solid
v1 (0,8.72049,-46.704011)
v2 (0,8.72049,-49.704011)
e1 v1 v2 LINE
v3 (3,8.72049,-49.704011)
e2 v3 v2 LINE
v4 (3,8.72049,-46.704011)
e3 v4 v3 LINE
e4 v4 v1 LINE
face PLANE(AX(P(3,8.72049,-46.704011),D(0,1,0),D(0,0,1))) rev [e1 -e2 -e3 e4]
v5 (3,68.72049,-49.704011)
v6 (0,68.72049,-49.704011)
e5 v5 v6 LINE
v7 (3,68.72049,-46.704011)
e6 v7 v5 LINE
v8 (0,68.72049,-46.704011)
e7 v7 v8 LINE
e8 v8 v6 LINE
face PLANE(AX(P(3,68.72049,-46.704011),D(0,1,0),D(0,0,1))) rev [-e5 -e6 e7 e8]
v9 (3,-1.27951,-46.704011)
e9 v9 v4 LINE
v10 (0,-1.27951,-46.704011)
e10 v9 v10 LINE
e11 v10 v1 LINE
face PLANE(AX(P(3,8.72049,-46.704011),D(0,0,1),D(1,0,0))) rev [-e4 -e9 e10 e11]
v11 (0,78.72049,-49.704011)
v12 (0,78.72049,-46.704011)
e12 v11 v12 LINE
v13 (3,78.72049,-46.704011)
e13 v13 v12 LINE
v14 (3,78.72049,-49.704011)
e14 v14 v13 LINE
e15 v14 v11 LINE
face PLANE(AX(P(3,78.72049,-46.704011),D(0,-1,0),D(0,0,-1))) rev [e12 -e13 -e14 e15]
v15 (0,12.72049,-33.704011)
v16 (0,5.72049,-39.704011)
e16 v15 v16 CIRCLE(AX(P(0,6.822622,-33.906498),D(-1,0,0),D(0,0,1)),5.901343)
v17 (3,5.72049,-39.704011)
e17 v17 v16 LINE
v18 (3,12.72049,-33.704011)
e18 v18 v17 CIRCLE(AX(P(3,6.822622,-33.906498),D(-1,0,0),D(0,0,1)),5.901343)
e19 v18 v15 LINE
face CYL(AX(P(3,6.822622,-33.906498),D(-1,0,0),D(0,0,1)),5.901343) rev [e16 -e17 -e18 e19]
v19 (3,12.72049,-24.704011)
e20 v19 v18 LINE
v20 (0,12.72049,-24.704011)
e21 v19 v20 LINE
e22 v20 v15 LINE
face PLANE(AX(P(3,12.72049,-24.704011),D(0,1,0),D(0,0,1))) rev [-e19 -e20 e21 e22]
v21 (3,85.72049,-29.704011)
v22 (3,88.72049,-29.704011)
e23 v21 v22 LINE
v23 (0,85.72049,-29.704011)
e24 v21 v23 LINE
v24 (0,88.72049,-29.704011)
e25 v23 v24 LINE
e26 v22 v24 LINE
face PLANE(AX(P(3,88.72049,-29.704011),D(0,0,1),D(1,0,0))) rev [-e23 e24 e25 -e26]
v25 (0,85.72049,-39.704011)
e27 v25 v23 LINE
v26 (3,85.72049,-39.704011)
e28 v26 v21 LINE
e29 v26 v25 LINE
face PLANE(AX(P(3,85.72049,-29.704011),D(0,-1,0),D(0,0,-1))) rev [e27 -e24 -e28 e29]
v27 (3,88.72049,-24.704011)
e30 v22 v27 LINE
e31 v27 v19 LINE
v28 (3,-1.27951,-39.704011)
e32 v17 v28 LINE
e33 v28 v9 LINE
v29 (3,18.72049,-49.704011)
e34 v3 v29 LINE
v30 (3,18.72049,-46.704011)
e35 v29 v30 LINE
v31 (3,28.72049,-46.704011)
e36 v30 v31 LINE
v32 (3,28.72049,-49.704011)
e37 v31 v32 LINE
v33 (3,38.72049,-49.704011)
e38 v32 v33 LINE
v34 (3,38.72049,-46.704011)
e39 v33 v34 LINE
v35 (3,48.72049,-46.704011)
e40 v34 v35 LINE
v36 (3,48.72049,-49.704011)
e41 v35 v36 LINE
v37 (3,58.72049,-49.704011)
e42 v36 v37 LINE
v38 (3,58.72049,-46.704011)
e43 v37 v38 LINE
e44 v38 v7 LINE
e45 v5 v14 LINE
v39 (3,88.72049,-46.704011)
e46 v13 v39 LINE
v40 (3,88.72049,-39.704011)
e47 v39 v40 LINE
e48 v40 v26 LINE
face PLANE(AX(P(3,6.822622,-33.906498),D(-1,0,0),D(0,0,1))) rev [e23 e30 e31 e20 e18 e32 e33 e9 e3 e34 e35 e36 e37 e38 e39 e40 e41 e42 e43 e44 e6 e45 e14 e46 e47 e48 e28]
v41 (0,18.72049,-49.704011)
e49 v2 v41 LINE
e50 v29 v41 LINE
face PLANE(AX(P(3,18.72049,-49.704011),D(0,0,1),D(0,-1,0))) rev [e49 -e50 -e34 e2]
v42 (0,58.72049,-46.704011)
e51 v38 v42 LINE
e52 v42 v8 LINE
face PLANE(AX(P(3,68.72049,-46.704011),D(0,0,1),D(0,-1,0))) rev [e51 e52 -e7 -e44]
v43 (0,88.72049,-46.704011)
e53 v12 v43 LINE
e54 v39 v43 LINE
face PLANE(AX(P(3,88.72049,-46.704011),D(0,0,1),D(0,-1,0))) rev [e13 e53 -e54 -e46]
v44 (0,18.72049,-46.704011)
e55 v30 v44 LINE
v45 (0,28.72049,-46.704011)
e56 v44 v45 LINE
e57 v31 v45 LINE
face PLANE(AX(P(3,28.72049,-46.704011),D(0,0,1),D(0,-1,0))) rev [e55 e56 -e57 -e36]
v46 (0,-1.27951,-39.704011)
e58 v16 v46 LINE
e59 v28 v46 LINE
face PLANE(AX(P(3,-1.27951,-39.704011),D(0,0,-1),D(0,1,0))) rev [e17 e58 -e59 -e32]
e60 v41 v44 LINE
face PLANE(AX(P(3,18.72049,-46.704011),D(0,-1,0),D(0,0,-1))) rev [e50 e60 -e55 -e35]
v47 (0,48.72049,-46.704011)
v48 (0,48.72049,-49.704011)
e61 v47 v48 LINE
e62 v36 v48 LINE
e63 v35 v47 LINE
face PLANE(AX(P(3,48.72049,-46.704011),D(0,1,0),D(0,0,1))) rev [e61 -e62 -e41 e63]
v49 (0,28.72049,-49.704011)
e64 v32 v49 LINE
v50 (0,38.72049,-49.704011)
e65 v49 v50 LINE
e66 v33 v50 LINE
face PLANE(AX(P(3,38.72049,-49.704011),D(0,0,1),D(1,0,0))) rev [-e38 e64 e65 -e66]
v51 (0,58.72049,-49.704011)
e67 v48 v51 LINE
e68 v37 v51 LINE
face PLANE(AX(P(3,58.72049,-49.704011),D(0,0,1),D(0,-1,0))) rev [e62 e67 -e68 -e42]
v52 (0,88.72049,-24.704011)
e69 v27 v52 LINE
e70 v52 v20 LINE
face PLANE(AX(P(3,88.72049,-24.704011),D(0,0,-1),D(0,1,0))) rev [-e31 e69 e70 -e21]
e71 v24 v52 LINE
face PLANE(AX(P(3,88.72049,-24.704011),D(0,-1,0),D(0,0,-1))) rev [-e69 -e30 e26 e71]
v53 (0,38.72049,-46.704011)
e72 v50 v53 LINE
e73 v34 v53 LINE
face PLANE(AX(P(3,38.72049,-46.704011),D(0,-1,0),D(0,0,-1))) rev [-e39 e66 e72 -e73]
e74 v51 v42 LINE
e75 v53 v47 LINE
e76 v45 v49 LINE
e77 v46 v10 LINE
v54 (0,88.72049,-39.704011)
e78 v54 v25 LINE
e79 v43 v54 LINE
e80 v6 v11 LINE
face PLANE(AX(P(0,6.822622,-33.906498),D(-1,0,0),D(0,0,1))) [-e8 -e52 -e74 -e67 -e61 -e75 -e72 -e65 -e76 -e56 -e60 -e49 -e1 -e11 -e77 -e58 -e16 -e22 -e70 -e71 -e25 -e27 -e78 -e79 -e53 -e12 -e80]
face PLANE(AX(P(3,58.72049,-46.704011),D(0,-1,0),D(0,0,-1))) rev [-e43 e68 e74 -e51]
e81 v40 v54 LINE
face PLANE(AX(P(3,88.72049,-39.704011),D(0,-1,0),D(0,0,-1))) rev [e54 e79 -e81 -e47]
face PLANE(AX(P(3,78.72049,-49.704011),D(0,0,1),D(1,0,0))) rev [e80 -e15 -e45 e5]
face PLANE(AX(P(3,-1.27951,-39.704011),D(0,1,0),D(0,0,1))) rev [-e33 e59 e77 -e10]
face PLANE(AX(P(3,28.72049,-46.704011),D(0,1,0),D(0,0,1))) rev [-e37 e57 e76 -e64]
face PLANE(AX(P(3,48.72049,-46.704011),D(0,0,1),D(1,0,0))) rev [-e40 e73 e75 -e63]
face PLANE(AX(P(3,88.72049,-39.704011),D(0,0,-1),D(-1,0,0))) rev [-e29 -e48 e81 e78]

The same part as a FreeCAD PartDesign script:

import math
import FreeCAD as App
import Part
import Sketcher
from FreeCAD import Vector
Q = App.Units.Quantity

doc = App.newDocument("Part")
params = doc.addObject("Spreadsheet::Sheet", "Params")
for row, (alias, value) in enumerate([
    ("sketch1_width", "7 mm"),
    ("sketch1_width2", "10 mm"),
    ("sketch1_width3", "3 mm"),
    ("sketch1_width4", "76 mm"),
    ("sketch1_height", "9 mm"),
    ("pad1_length", "3 mm"),
], start=1):
    params.set(f"A{row}", alias)
    params.set(f"B{row}", "=" + value)
    params.setAlias(f"B{row}", alias)

body = doc.addObject("PartDesign::Body", "Body")

sketch1 = doc.addObject("Sketcher::SketchObject", "Sketch")
body.addObject(sketch1)
sketch1.AttachmentSupport = (doc.YZ_Plane, [""])
sketch1.MapMode = "FlatFace"
sketch1.addGeometry([
    Part.LineSegment(Vector(12.7, -24.7, 0), Vector(12.7, -33.7, 0)),
    Part.ArcOfCircle(Part.Circle(Vector(6.8, -33.9, 0), Vector(0, 0, 1), 5.9), math.radians(-101), math.radians(2)),
    Part.LineSegment(Vector(5.7, -39.7, 0), Vector(-1.3, -39.7, 0)),
    Part.LineSegment(Vector(-1.3, -39.7, 0), Vector(-1.3, -46.7, 0)),
    Part.LineSegment(Vector(-1.3, -46.7, 0), Vector(8.7, -46.7, 0)),
    Part.LineSegment(Vector(8.7, -46.7, 0), Vector(8.7, -49.7, 0)),
    Part.LineSegment(Vector(8.7, -49.7, 0), Vector(18.7, -49.7, 0)),
    Part.LineSegment(Vector(18.7, -49.7, 0), Vector(18.7, -46.7, 0)),
    Part.LineSegment(Vector(18.7, -46.7, 0), Vector(28.7, -46.7, 0)),
    Part.LineSegment(Vector(28.7, -46.7, 0), Vector(28.7, -49.7, 0)),
    Part.LineSegment(Vector(28.7, -49.7, 0), Vector(38.7, -49.7, 0)),
    Part.LineSegment(Vector(38.7, -49.7, 0), Vector(38.7, -46.7, 0)),
    Part.LineSegment(Vector(38.7, -46.7, 0), Vector(48.7, -46.7, 0)),
    Part.LineSegment(Vector(48.7, -46.7, 0), Vector(48.7, -49.7, 0)),
    Part.LineSegment(Vector(48.7, -49.7, 0), Vector(58.7, -49.7, 0)),
    Part.LineSegment(Vector(58.7, -49.7, 0), Vector(58.7, -46.7, 0)),
    Part.LineSegment(Vector(58.7, -46.7, 0), Vector(68.7, -46.7, 0)),
    Part.LineSegment(Vector(68.7, -46.7, 0), Vector(68.7, -49.7, 0)),
    Part.LineSegment(Vector(68.7, -49.7, 0), Vector(78.7, -49.7, 0)),
    Part.LineSegment(Vector(78.7, -49.7, 0), Vector(78.7, -46.7, 0)),
    Part.LineSegment(Vector(78.7, -46.7, 0), Vector(88.7, -46.7, 0)),
    Part.LineSegment(Vector(88.7, -46.7, 0), Vector(88.7, -39.7, 0)),
    Part.LineSegment(Vector(88.7, -39.7, 0), Vector(85.7, -39.7, 0)),
    Part.LineSegment(Vector(85.7, -39.7, 0), Vector(85.7, -29.7, 0)),
    Part.LineSegment(Vector(85.7, -29.7, 0), Vector(88.7, -29.7, 0)),
    Part.LineSegment(Vector(88.7, -29.7, 0), Vector(88.7, -24.7, 0)),
    Part.LineSegment(Vector(88.7, -24.7, 0), Vector(12.7, -24.7, 0)),
], False)
sketch1.addConstraint([
    Sketcher.Constraint("Coincident", 0, 2, 1, 2),
    Sketcher.Constraint("Coincident", 1, 1, 2, 1),
    Sketcher.Constraint("Coincident", 2, 2, 3, 1),
    Sketcher.Constraint("Coincident", 3, 2, 4, 1),
    Sketcher.Constraint("Coincident", 4, 2, 5, 1),
    Sketcher.Constraint("Coincident", 5, 2, 6, 1),
    Sketcher.Constraint("Coincident", 6, 2, 7, 1),
    Sketcher.Constraint("Coincident", 7, 2, 8, 1),
    Sketcher.Constraint("Coincident", 8, 2, 9, 1),
    Sketcher.Constraint("Coincident", 9, 2, 10, 1),
    Sketcher.Constraint("Coincident", 10, 2, 11, 1),
    Sketcher.Constraint("Coincident", 11, 2, 12, 1),
    Sketcher.Constraint("Coincident", 12, 2, 13, 1),
    Sketcher.Constraint("Coincident", 13, 2, 14, 1),
    Sketcher.Constraint("Coincident", 14, 2, 15, 1),
    Sketcher.Constraint("Coincident", 15, 2, 16, 1),
    Sketcher.Constraint("Coincident", 16, 2, 17, 1),
    Sketcher.Constraint("Coincident", 17, 2, 18, 1),
    Sketcher.Constraint("Coincident", 18, 2, 19, 1),
    Sketcher.Constraint("Coincident", 19, 2, 20, 1),
    Sketcher.Constraint("Coincident", 20, 2, 21, 1),
    Sketcher.Constraint("Coincident", 21, 2, 22, 1),
    Sketcher.Constraint("Coincident", 22, 2, 23, 1),
    Sketcher.Constraint("Coincident", 23, 2, 24, 1),
    Sketcher.Constraint("Coincident", 24, 2, 25, 1),
    Sketcher.Constraint("Coincident", 25, 2, 26, 1),
    Sketcher.Constraint("Coincident", 26, 2, 0, 1),
    Sketcher.Constraint("Vertical", 0),
    Sketcher.Constraint("Horizontal", 2),
    Sketcher.Constraint("Vertical", 3),
    Sketcher.Constraint("Horizontal", 4),
    Sketcher.Constraint("Vertical", 5),
    Sketcher.Constraint("Horizontal", 6),
    Sketcher.Constraint("Vertical", 7),
    Sketcher.Constraint("Horizontal", 8),
    Sketcher.Constraint("Vertical", 9),
    Sketcher.Constraint("Horizontal", 10),
    Sketcher.Constraint("Vertical", 11),
    Sketcher.Constraint("Horizontal", 12),
    Sketcher.Constraint("Vertical", 13),
    Sketcher.Constraint("Horizontal", 14),
    Sketcher.Constraint("Vertical", 15),
    Sketcher.Constraint("Horizontal", 16),
    Sketcher.Constraint("Vertical", 17),
    Sketcher.Constraint("Horizontal", 18),
    Sketcher.Constraint("Vertical", 19),
    Sketcher.Constraint("Horizontal", 20),
    Sketcher.Constraint("Vertical", 21),
    Sketcher.Constraint("Horizontal", 22),
    Sketcher.Constraint("Vertical", 23),
    Sketcher.Constraint("Horizontal", 24),
    Sketcher.Constraint("Vertical", 25),
    Sketcher.Constraint("Horizontal", 26),
    Sketcher.Constraint("Horizontal", 4, 2, 7, 2),
    Sketcher.Constraint("Horizontal", 6, 2, 9, 2),
    Sketcher.Constraint("Horizontal", 8, 2, 11, 2),
    Sketcher.Constraint("Horizontal", 10, 2, 13, 2),
    Sketcher.Constraint("Horizontal", 12, 2, 15, 2),
    Sketcher.Constraint("Horizontal", 14, 2, 17, 2),
    Sketcher.Constraint("Horizontal", 16, 2, 19, 2),
    Sketcher.Constraint("Horizontal", 2, 2, 21, 2),
    Sketcher.Constraint("Vertical", 21, 2, 24, 2),
    Sketcher.Constraint("Equal", 4, 6),
    Sketcher.Constraint("Equal", 6, 8),
    Sketcher.Constraint("Equal", 8, 10),
    Sketcher.Constraint("Equal", 10, 12),
    Sketcher.Constraint("Equal", 12, 14),
    Sketcher.Constraint("Equal", 14, 16),
    Sketcher.Constraint("Equal", 16, 18),
    Sketcher.Constraint("Equal", 18, 20),
    Sketcher.Constraint("Equal", 2, 3),
    Sketcher.Constraint("Equal", 24, 5),
    Sketcher.Constraint("Equal", 20, 23),
    Sketcher.Constraint("DistanceX", 2, 2, 2, 1, Q("7 mm")),
    Sketcher.Constraint("DistanceX", 4, 1, 4, 2, Q("10 mm")),
    Sketcher.Constraint("DistanceX", 22, 2, 22, 1, Q("3 mm")),
    Sketcher.Constraint("DistanceX", 26, 2, 26, 1, Q("76 mm")),
    Sketcher.Constraint("DistanceY", 0, 2, 0, 1, Q("9 mm")),
    Sketcher.Constraint("DistanceY", 25, 1, 25, 2, Q("5 mm")),
    Sketcher.Constraint("Radius", 1, Q("5.901343 mm")),
    Sketcher.Constraint("DistanceY", 1, 3, -1, 1, Q("33.906498 mm")),
    Sketcher.Constraint("DistanceX", -1, 1, 1, 3, Q("6.822622 mm")),
])
sketch1.setExpression("Constraints[73]", "Params.sketch1_width")
sketch1.setExpression("Constraints[74]", "Params.sketch1_width2")
sketch1.setExpression("Constraints[75]", "Params.sketch1_width3")
sketch1.setExpression("Constraints[76]", "Params.sketch1_width4")
sketch1.setExpression("Constraints[77]", "Params.sketch1_height")
pad1 = doc.addObject("PartDesign::Pad", "Pad")
body.addObject(pad1)
pad1.Profile = sketch1
pad1.setExpression("Length", "Params.pad1_length")

doc.recompute()
